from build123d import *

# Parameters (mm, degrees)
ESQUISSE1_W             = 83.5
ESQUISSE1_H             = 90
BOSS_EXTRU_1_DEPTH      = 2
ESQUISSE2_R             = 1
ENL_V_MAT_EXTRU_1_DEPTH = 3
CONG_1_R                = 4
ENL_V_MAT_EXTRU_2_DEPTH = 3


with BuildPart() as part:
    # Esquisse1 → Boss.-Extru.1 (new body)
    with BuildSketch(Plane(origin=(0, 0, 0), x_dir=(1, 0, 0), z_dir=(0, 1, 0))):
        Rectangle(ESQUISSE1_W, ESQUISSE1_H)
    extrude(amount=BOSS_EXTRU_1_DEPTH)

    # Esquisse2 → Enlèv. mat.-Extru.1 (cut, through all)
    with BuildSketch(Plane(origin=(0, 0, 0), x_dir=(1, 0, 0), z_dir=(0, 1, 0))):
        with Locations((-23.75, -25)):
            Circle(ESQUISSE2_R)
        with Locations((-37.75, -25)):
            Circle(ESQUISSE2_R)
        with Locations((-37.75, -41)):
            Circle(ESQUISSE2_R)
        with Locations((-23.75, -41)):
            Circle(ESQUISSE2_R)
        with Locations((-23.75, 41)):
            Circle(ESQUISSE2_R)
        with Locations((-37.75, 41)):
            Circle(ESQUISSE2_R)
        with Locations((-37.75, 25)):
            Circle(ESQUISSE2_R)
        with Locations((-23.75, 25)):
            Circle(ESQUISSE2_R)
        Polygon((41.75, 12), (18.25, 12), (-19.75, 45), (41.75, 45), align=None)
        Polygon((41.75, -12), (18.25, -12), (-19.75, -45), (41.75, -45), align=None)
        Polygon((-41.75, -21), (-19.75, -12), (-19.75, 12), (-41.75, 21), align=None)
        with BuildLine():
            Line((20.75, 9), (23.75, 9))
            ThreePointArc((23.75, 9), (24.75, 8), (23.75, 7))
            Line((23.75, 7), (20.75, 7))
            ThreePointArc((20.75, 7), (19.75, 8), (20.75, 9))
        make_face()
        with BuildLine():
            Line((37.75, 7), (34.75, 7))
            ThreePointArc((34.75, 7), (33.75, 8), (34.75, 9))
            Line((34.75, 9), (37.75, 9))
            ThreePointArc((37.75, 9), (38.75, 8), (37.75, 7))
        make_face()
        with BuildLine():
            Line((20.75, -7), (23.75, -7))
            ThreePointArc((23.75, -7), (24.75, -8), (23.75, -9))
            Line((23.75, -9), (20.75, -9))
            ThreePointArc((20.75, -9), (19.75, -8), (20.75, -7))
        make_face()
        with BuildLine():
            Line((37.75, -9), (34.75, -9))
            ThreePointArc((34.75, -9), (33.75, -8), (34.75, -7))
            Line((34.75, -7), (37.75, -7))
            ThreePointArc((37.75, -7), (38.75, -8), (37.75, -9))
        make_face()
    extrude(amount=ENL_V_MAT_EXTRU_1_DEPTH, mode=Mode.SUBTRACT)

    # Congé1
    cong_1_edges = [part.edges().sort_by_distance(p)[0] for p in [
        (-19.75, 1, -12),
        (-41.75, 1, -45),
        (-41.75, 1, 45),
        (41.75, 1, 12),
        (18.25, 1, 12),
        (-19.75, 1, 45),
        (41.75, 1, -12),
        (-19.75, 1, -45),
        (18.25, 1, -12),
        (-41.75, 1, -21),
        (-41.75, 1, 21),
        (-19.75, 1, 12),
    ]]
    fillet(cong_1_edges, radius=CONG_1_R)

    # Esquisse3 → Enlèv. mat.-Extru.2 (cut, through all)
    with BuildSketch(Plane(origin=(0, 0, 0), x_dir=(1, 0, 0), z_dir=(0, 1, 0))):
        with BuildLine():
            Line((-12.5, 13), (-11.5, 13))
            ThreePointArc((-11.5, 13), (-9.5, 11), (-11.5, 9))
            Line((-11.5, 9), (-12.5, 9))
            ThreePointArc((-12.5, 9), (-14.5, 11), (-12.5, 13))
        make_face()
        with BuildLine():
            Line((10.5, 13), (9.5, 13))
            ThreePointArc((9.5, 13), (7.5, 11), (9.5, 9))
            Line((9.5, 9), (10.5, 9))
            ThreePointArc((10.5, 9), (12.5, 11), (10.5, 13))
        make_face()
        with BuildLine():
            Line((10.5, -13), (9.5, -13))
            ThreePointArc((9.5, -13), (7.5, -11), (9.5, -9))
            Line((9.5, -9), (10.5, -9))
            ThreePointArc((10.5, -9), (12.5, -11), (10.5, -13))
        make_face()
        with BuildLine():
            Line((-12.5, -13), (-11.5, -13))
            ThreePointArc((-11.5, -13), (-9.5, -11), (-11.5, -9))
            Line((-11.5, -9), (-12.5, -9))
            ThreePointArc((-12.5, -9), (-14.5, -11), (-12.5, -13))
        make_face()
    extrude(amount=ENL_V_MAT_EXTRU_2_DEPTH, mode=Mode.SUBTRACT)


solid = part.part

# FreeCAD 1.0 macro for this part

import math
import FreeCAD as App
import Part
import Sketcher
from FreeCAD import Vector


def edges_at(feature, points):
    """Names of the edges that pass closest to the given points."""
    edges = feature.Shape.Edges
    near = lambda p: min(range(len(edges)), key=lambda i: edges[i].distToShape(Part.Vertex(*p))[0])
    return sorted({f"Edge{near(p) + 1}" for p in points})


def add_polygon(sketch, points):
    """Adds a closed chain of lines whose ends are joined by coincident constraints."""
    first, n = sketch.GeometryCount, len(points)
    for a, b in zip(points, points[1:] + points[:1]):
        sketch.addGeometry(Part.LineSegment(App.Vector(*a, 0), App.Vector(*b, 0)), False)
    for i in range(n):
        sketch.addConstraint(Sketcher.Constraint("Coincident", first + i, 2, first + (i + 1) % n, 1))

doc = App.newDocument("Part")
params = doc.addObject("Spreadsheet::Sheet", "Params")
for row, (alias, value) in enumerate([
    ("sketch1_height", "90 mm"),
    ("sketch1_width", "83.5 mm"),
    ("pad1_length", "2 mm"),
    ("sketch2_diameter", "2 mm"),
    ("sketch2_width", "3 mm"),
    ("sketch2_height", "33 mm"),
    ("sketch2_height2", "24 mm"),
    ("sketch2_height3", "42 mm"),
    ("fillet_radius", "4 mm"),
    ("sketch3_radius", "2 mm"),
    ("sketch3_width", "1 mm"),
], start=1):
    params.set(f"A{row}", alias)
    params.set(f"B{row}", "=" + value)
    params.setAlias(f"B{row}", alias)

body = doc.addObject("PartDesign::Body", "Body")

# Sketch on XZ plane
sketch1 = doc.addObject("Sketcher::SketchObject", "Sketch")
body.addObject(sketch1)
sketch1.AttachmentSupport = (doc.XZ_Plane, [""])
sketch1.MapMode = "FlatFace"
add_polygon(sketch1, [(-42, -45), (-42, 45), (42, 45), (42, -45)])  # lines 0-3
sketch1.addConstraint([
    Sketcher.Constraint("Vertical", 0),
    Sketcher.Constraint("Horizontal", 1),
    Sketcher.Constraint("Vertical", 2),
    Sketcher.Constraint("Horizontal", 3),
    Sketcher.Constraint("Symmetric", 0, 2, 2, 2, -1, 1),
    Sketcher.Constraint("DistanceY", 0, 1, 0, 2, 90.0),
    Sketcher.Constraint("DistanceX", 1, 1, 1, 2, 83.5),
])
sketch1.setExpression("Constraints[9]", "Params.sketch1_height")
sketch1.setExpression("Constraints[10]", "Params.sketch1_width")
pad1 = doc.addObject("PartDesign::Pad", "Pad")
body.addObject(pad1)
pad1.Profile = sketch1
pad1.setExpression("Length", "Params.pad1_length")
pad1.Reversed = True

# Sketch on XZ plane
sketch2 = doc.addObject("Sketcher::SketchObject", "Sketch001")
body.addObject(sketch2)
sketch2.AttachmentSupport = (doc.XZ_Plane, [""])
sketch2.MapMode = "FlatFace"
sketch2.addGeometry(Part.Circle(Vector(-23.8, 25, 0), Vector(0, 0, 1), 1), False)  # 0
sketch2.addGeometry(Part.Circle(Vector(-37.8, 25, 0), Vector(0, 0, 1), 1), False)  # 1
sketch2.addGeometry(Part.Circle(Vector(-37.8, 41, 0), Vector(0, 0, 1), 1), False)  # 2
sketch2.addGeometry(Part.Circle(Vector(-23.8, 41, 0), Vector(0, 0, 1), 1), False)  # 3
sketch2.addGeometry(Part.Circle(Vector(-23.8, -41, 0), Vector(0, 0, 1), 1), False)  # 4
sketch2.addGeometry(Part.Circle(Vector(-37.8, -41, 0), Vector(0, 0, 1), 1), False)  # 5
sketch2.addGeometry(Part.Circle(Vector(-37.8, -25, 0), Vector(0, 0, 1), 1), False)  # 6
sketch2.addGeometry(Part.Circle(Vector(-23.8, -25, 0), Vector(0, 0, 1), 1), False)  # 7
add_polygon(sketch2, [(18.2, -12), (41.8, -12), (41.8, -45), (-19.8, -45)])  # lines 8-11
add_polygon(sketch2, [(41.8, 12), (18.2, 12), (-19.8, 45), (41.8, 45)])  # lines 12-15
add_polygon(sketch2, [(-41.8, 21), (-19.8, 12), (-19.8, -12), (-41.8, -21)])  # lines 16-19
sketch2.addGeometry(Part.LineSegment(Vector(23.8, -9, 0), Vector(20.8, -9, 0)), False)  # 20
sketch2.addGeometry(Part.ArcOfCircle(Part.Circle(Vector(20.8, -8, 0), Vector(0, 0, 1), 1), math.radians(90), math.radians(270)), False)  # 21
sketch2.addGeometry(Part.LineSegment(Vector(20.8, -7, 0), Vector(23.8, -7, 0)), False)  # 22
sketch2.addGeometry(Part.ArcOfCircle(Part.Circle(Vector(23.8, -8, 0), Vector(0, 0, 1), 1), math.radians(-90), math.radians(90)), False)  # 23
sketch2.addGeometry(Part.LineSegment(Vector(34.8, -7, 0), Vector(37.8, -7, 0)), False)  # 24
sketch2.addGeometry(Part.ArcOfCircle(Part.Circle(Vector(37.8, -8, 0), Vector(0, 0, 1), 1), math.radians(-90), math.radians(90)), False)  # 25
sketch2.addGeometry(Part.LineSegment(Vector(37.8, -9, 0), Vector(34.8, -9, 0)), False)  # 26
sketch2.addGeometry(Part.ArcOfCircle(Part.Circle(Vector(34.8, -8, 0), Vector(0, 0, 1), 1), math.radians(90), math.radians(270)), False)  # 27
sketch2.addGeometry(Part.LineSegment(Vector(23.8, 7, 0), Vector(20.8, 7, 0)), False)  # 28
sketch2.addGeometry(Part.ArcOfCircle(Part.Circle(Vector(20.8, 8, 0), Vector(0, 0, 1), 1), math.radians(90), math.radians(270)), False)  # 29
sketch2.addGeometry(Part.LineSegment(Vector(20.8, 9, 0), Vector(23.8, 9, 0)), False)  # 30
sketch2.addGeometry(Part.ArcOfCircle(Part.Circle(Vector(23.8, 8, 0), Vector(0, 0, 1), 1), math.radians(-90), math.radians(90)), False)  # 31
sketch2.addGeometry(Part.LineSegment(Vector(34.8, 9, 0), Vector(37.8, 9, 0)), False)  # 32
sketch2.addGeometry(Part.ArcOfCircle(Part.Circle(Vector(37.8, 8, 0), Vector(0, 0, 1), 1), math.radians(-90), math.radians(90)), False)  # 33
sketch2.addGeometry(Part.LineSegment(Vector(37.8, 7, 0), Vector(34.8, 7, 0)), False)  # 34
sketch2.addGeometry(Part.ArcOfCircle(Part.Circle(Vector(34.8, 8, 0), Vector(0, 0, 1), 1), math.radians(90), math.radians(270)), False)  # 35
sketch2.addConstraint([
    Sketcher.Constraint("Tangent", 20, 2, 21, 2),
    Sketcher.Constraint("Tangent", 21, 1, 22, 1),
    Sketcher.Constraint("Tangent", 22, 2, 23, 2),
    Sketcher.Constraint("Tangent", 23, 1, 20, 1),
    Sketcher.Constraint("Tangent", 24, 2, 25, 2),
    Sketcher.Constraint("Tangent", 25, 1, 26, 1),
    Sketcher.Constraint("Tangent", 26, 2, 27, 2),
    Sketcher.Constraint("Tangent", 27, 1, 24, 1),
    Sketcher.Constraint("Tangent", 28, 2, 29, 2),
    Sketcher.Constraint("Tangent", 29, 1, 30, 1),
    Sketcher.Constraint("Tangent", 30, 2, 31, 2),
    Sketcher.Constraint("Tangent", 31, 1, 28, 1),
    Sketcher.Constraint("Tangent", 32, 2, 33, 2),
    Sketcher.Constraint("Tangent", 33, 1, 34, 1),
    Sketcher.Constraint("Tangent", 34, 2, 35, 2),
    Sketcher.Constraint("Tangent", 35, 1, 32, 1),
    Sketcher.Constraint("Horizontal", 8),
    Sketcher.Constraint("Vertical", 9),
    Sketcher.Constraint("Horizontal", 10),
    Sketcher.Constraint("Horizontal", 12),
    Sketcher.Constraint("Horizontal", 14),
    Sketcher.Constraint("Vertical", 15),
    Sketcher.Constraint("Vertical", 17),
    Sketcher.Constraint("Vertical", 19),
    Sketcher.Constraint("Horizontal", 20),
    Sketcher.Constraint("Horizontal", 22),
    Sketcher.Constraint("Horizontal", 24),
    Sketcher.Constraint("Horizontal", 26),
    Sketcher.Constraint("Horizontal", 28),
    Sketcher.Constraint("Horizontal", 30),
    Sketcher.Constraint("Horizontal", 32),
    Sketcher.Constraint("Horizontal", 34),
    Sketcher.Constraint("Equal", 0, 1),
    Sketcher.Constraint("Equal", 1, 2),
    Sketcher.Constraint("Equal", 2, 3),
    Sketcher.Constraint("Equal", 3, 4),
    Sketcher.Constraint("Equal", 4, 5),
    Sketcher.Constraint("Equal", 5, 6),
    Sketcher.Constraint("Equal", 6, 7),
    Sketcher.Constraint("Equal", 7, 21),
    Sketcher.Constraint("Equal", 23, 25),
    Sketcher.Constraint("Equal", 27, 29),
    Sketcher.Constraint("Equal", 31, 33),
    Sketcher.Constraint("Symmetric", 3, 3, 4, 3, -1),
    Sketcher.Constraint("Symmetric", 2, 3, 5, 3, -1),
    Sketcher.Constraint("Symmetric", 1, 3, 6, 3, -1),
    Sketcher.Constraint("Symmetric", 0, 3, 7, 3, -1),
    Sketcher.Constraint("Symmetric", 21, 3, 29, 3, -1),
    Sketcher.Constraint("Symmetric", 25, 3, 33, 3, -1),
    Sketcher.Constraint("Symmetric", 11, 2, 12, 2, -1),
    Sketcher.Constraint("Symmetric", 10, 2, 13, 2, -1),
    Sketcher.Constraint("Horizontal", 0, 3, 1, 3),
    Sketcher.Constraint("Horizontal", 2, 3, 3, 3),
    Sketcher.Constraint("Horizontal", 23, 3, 25, 3),
    Sketcher.Constraint("Horizontal", 15, 2, 16, 2),
    Sketcher.Constraint("Horizontal", 11, 2, 17, 2),
    Sketcher.Constraint("Vertical", 1, 3, 2, 3),
    Sketcher.Constraint("Vertical", 0, 3, 3, 3),
    Sketcher.Constraint("Vertical", 23, 3, 31, 3),
    Sketcher.Constraint("Vertical", 27, 3, 35, 3),
    Sketcher.Constraint("Vertical", 9, 2, 14, 2),
    Sketcher.Constraint("Vertical", 13, 2, 16, 2),
    Sketcher.Constraint("Equal", 22, 24),
    Sketcher.Constraint("Equal", 16, 18),
    Sketcher.Constraint("Diameter", 0, 2.0),
    Sketcher.Constraint("DistanceX", 20, 2, 20, 1, 3.0),
    Sketcher.Constraint("DistanceY", 9, 2, 9, 1, 33.0),
    Sketcher.Constraint("DistanceY", 17, 2, 17, 1, 24.0),
    Sketcher.Constraint("DistanceY", 19, 1, 19, 2, 42.0),
    Sketcher.Constraint("DistanceX", 8, 1, 8, 2, 23.5),
    Sketcher.Constraint("DistanceX", 10, 2, 10, 1, 61.5),
    Sketcher.Constraint("DistanceY", -1, 1, 0, 3, 25.0),
    Sketcher.Constraint("DistanceY", -1, 1, 2, 3, 41.0),
    Sketcher.Constraint("DistanceY", 21, 3, -1, 1, 8.0),
    Sketcher.Constraint("DistanceX", 1, 3, 0, 3, 14.0),
    Sketcher.Constraint("DistanceX", 23, 3, 25, 3, 14.0),
    Sketcher.Constraint("DistanceX", 25, 3, 8, 2, 4.0),
    Sketcher.Constraint("DistanceX", 4, 3, 10, 2, 4.0),
    Sketcher.Constraint("DistanceX", 18, 2, 6, 3, 4.0),
    Sketcher.Constraint("DistanceX", 0, 3, -1, 1, 23.75),
])
sketch2.setExpression("Constraints[76]", "Params.sketch2_diameter")
sketch2.setExpression("Constraints[77]", "Params.sketch2_width")
sketch2.setExpression("Constraints[78]", "Params.sketch2_height")
sketch2.setExpression("Constraints[79]", "Params.sketch2_height2")
sketch2.setExpression("Constraints[80]", "Params.sketch2_height3")
pocket1 = doc.addObject("PartDesign::Pocket", "Pocket")
body.addObject(pocket1)
pocket1.Profile = sketch2
pocket1.Type = "ThroughAll"
doc.recompute()

fillet = doc.addObject("PartDesign::Fillet", "Fillet")
body.addObject(fillet)
fillet.Base = (pocket1, edges_at(pocket1, [
    (-19.75, 1, -12),
    (-41.75, 1, -45),
    (-41.75, 1, 45),
    (41.75, 1, 12),
    (18.25, 1, 12),
    (-19.75, 1, 45),
    (41.75, 1, -12),
    (-19.75, 1, -45),
    (18.25, 1, -12),
    (-41.75, 1, -21),
    (-41.75, 1, 21),
    (-19.75, 1, 12),
]))
fillet.setExpression("Radius", "Params.fillet_radius")

# Sketch on XZ plane
sketch3 = doc.addObject("Sketcher::SketchObject", "Sketch002")
body.addObject(sketch3)
sketch3.AttachmentSupport = (doc.XZ_Plane, [""])
sketch3.MapMode = "FlatFace"
sketch3.addGeometry([
    Part.LineSegment(Vector(-11.5, -13, 0), Vector(-12.5, -13, 0)),  # 0
    Part.ArcOfCircle(Part.Circle(Vector(-12.5, -11, 0), Vector(0, 0, 1), 2), math.radians(90), math.radians(270)),  # 1
    Part.LineSegment(Vector(-12.5, -9, 0), Vector(-11.5, -9, 0)),  # 2
    Part.ArcOfCircle(Part.Circle(Vector(-11.5, -11, 0), Vector(0, 0, 1), 2), math.radians(-90), math.radians(90)),  # 3
    Part.LineSegment(Vector(10.5, -13, 0), Vector(9.5, -13, 0)),  # 4
    Part.ArcOfCircle(Part.Circle(Vector(9.5, -11, 0), Vector(0, 0, 1), 2), math.radians(90), math.radians(270)),  # 5
    Part.LineSegment(Vector(9.5, -9, 0), Vector(10.5, -9, 0)),  # 6
    Part.ArcOfCircle(Part.Circle(Vector(10.5, -11, 0), Vector(0, 0, 1), 2), math.radians(-90), math.radians(90)),  # 7
    Part.LineSegment(Vector(9.5, 13, 0), Vector(10.5, 13, 0)),  # 8
    Part.ArcOfCircle(Part.Circle(Vector(10.5, 11, 0), Vector(0, 0, 1), 2), math.radians(-90), math.radians(90)),  # 9
    Part.LineSegment(Vector(10.5, 9, 0), Vector(9.5, 9, 0)),  # 10
    Part.ArcOfCircle(Part.Circle(Vector(9.5, 11, 0), Vector(0, 0, 1), 2), math.radians(90), math.radians(270)),  # 11
    Part.LineSegment(Vector(-12.5, 13, 0), Vector(-11.5, 13, 0)),  # 12
    Part.ArcOfCircle(Part.Circle(Vector(-11.5, 11, 0), Vector(0, 0, 1), 2), math.radians(-90), math.radians(90)),  # 13
    Part.LineSegment(Vector(-11.5, 9, 0), Vector(-12.5, 9, 0)),  # 14
    Part.ArcOfCircle(Part.Circle(Vector(-12.5, 11, 0), Vector(0, 0, 1), 2), math.radians(90), math.radians(270)),  # 15
], False)
sketch3.addConstraint([
    Sketcher.Constraint("Tangent", 0, 2, 1, 2),
    Sketcher.Constraint("Tangent", 1, 1, 2, 1),
    Sketcher.Constraint("Tangent", 2, 2, 3, 2),
    Sketcher.Constraint("Tangent", 3, 1, 0, 1),
    Sketcher.Constraint("Tangent", 4, 2, 5, 2),
    Sketcher.Constraint("Tangent", 5, 1, 6, 1),
    Sketcher.Constraint("Tangent", 6, 2, 7, 2),
    Sketcher.Constraint("Tangent", 7, 1, 4, 1),
    Sketcher.Constraint("Tangent", 8, 2, 9, 2),
    Sketcher.Constraint("Tangent", 9, 1, 10, 1),
    Sketcher.Constraint("Tangent", 10, 2, 11, 2),
    Sketcher.Constraint("Tangent", 11, 1, 8, 1),
    Sketcher.Constraint("Tangent", 12, 2, 13, 2),
    Sketcher.Constraint("Tangent", 13, 1, 14, 1),
    Sketcher.Constraint("Tangent", 14, 2, 15, 2),
    Sketcher.Constraint("Tangent", 15, 1, 12, 1),
    Sketcher.Constraint("Horizontal", 0),
    Sketcher.Constraint("Horizontal", 2),
    Sketcher.Constraint("Horizontal", 4),
    Sketcher.Constraint("Horizontal", 6),
    Sketcher.Constraint("Horizontal", 8),
    Sketcher.Constraint("Horizontal", 10),
    Sketcher.Constraint("Horizontal", 12),
    Sketcher.Constraint("Horizontal", 14),
    Sketcher.Constraint("Equal", 3, 5),
    Sketcher.Constraint("Equal", 7, 9),
    Sketcher.Constraint("Equal", 11, 13),
    Sketcher.Constraint("Symmetric", 7, 3, 9, 3, -1),
    Sketcher.Constraint("Symmetric", 3, 3, 13, 3, -1),
    Sketcher.Constraint("Horizontal", 3, 3, 5, 3),
    Sketcher.Constraint("Vertical", 5, 3, 11, 3),
    Sketcher.Constraint("Vertical", 1, 3, 15, 3),
    Sketcher.Constraint("Equal", 2, 4),
    Sketcher.Constraint("Radius", 1, 2.0),
    Sketcher.Constraint("DistanceX", 0, 2, 0, 1, 1.0),
    Sketcher.Constraint("DistanceY", 1, 3, -1, 1, 11.0),
    Sketcher.Constraint("DistanceX", 3, 3, 5, 3, 21.0),
    Sketcher.Constraint("DistanceX", 1, 3, -1, 1, 12.5),
])
sketch3.setExpression("Constraints[33]", "Params.sketch3_radius")
sketch3.setExpression("Constraints[34]", "Params.sketch3_width")
pocket2 = doc.addObject("PartDesign::Pocket", "Pocket001")
body.addObject(pocket2)
pocket2.Profile = sketch3
pocket2.Type = "ThroughAll"

doc.recompute()
